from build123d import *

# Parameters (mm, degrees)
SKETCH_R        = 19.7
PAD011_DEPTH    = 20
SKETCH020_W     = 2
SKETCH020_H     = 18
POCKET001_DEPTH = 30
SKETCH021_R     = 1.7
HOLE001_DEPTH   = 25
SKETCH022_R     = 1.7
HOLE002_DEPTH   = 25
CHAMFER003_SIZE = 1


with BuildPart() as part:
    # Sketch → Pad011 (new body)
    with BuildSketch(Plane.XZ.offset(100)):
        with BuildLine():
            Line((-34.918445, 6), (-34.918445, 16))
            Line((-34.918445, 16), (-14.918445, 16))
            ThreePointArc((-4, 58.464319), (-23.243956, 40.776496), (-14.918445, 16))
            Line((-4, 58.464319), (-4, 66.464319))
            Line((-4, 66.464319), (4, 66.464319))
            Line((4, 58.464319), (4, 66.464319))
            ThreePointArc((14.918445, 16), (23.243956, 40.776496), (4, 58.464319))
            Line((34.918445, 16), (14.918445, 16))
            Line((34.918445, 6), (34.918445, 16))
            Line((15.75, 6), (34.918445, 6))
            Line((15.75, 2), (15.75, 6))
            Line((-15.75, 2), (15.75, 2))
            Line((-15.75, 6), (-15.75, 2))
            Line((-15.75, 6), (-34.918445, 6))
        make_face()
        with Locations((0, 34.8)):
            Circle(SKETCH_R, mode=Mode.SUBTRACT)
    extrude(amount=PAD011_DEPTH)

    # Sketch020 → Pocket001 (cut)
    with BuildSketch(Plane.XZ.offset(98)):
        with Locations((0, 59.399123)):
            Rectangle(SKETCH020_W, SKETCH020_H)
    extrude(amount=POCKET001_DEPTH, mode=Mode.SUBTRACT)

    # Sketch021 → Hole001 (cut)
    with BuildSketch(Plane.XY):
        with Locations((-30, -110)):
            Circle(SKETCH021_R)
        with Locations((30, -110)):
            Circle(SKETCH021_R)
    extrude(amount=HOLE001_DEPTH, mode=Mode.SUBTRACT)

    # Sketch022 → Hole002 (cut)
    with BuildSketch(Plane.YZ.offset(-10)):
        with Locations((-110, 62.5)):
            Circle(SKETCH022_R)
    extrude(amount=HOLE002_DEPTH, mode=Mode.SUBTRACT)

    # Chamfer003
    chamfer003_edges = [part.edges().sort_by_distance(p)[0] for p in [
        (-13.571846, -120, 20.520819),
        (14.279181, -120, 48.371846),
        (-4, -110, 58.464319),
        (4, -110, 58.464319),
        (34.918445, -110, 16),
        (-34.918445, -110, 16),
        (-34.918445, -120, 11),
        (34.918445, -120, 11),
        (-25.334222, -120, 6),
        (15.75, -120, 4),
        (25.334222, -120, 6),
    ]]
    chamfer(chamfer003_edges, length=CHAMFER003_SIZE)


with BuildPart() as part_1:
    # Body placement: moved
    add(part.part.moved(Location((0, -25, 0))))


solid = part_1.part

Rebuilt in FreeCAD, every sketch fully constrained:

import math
import FreeCAD as App
import Part
import Sketcher

V = App.Vector


def edges_at(feature, points):
    """Names of the edges that pass closest to the given points."""
    edges = feature.Shape.Edges
    near = lambda p: min(range(len(edges)), key=lambda i: edges[i].distToShape(Part.Vertex(*p))[0])
    return sorted({f"Edge{near(p) + 1}" for p in points})

doc = App.newDocument("Part")
body = doc.addObject("PartDesign::Body", "Body")

sketch1 = body.newObject("Sketcher::SketchObject", "Sketch")
sketch1.AttachmentSupport = (doc.getObject("XZ_Plane"), [""])
sketch1.MapMode = "FlatFace"
sketch1.AttachmentOffset = App.Placement(V(0, 0, 100), App.Rotation())
sketch1.addGeometry(Part.LineSegment(V(-34.9, 16, 0), V(-34.9, 6, 0)), False)
sketch1.addGeometry(Part.LineSegment(V(-34.9, 6, 0), V(-15.8, 6, 0)), False)
sketch1.addGeometry(Part.LineSegment(V(-15.8, 6, 0), V(-15.8, 2, 0)), False)
sketch1.addGeometry(Part.LineSegment(V(-15.8, 2, 0), V(15.8, 2, 0)), False)
sketch1.addGeometry(Part.LineSegment(V(15.8, 2, 0), V(15.8, 6, 0)), False)
sketch1.addGeometry(Part.LineSegment(V(15.8, 6, 0), V(34.9, 6, 0)), False)
sketch1.addGeometry(Part.LineSegment(V(34.9, 6, 0), V(34.9, 16, 0)), False)
sketch1.addGeometry(Part.LineSegment(V(34.9, 16, 0), V(14.9, 16, 0)), False)
sketch1.addGeometry(Part.ArcOfCircle(Part.Circle(V(0, 34.8, 0), V(0, 0, 1), 24), math.radians(-52), math.radians(80)), False)
sketch1.addGeometry(Part.LineSegment(V(4, 58.5, 0), V(4, 66.5, 0)), False)
sketch1.addGeometry(Part.LineSegment(V(4, 66.5, 0), V(-4, 66.5, 0)), False)
sketch1.addGeometry(Part.LineSegment(V(-4, 66.5, 0), V(-4, 58.5, 0)), False)
sketch1.addGeometry(Part.ArcOfCircle(Part.Circle(V(0, 34.8, 0), V(0, 0, 1), 24), math.radians(100), math.radians(232)), False)
sketch1.addGeometry(Part.LineSegment(V(-14.9, 16, 0), V(-34.9, 16, 0)), False)
sketch1.addGeometry(Part.Circle(V(0, 34.8, 0), V(0, 0, 1), 19.7), False)
sketch1.addConstraint(Sketcher.Constraint("Coincident", 0, 2, 1, 1))
sketch1.addConstraint(Sketcher.Constraint("Coincident", 1, 2, 2, 1))
sketch1.addConstraint(Sketcher.Constraint("Coincident", 2, 2, 3, 1))
sketch1.addConstraint(Sketcher.Constraint("Coincident", 3, 2, 4, 1))
sketch1.addConstraint(Sketcher.Constraint("Coincident", 4, 2, 5, 1))
sketch1.addConstraint(Sketcher.Constraint("Coincident", 5, 2, 6, 1))
sketch1.addConstraint(Sketcher.Constraint("Coincident", 6, 2, 7, 1))
sketch1.addConstraint(Sketcher.Constraint("Coincident", 7, 2, 8, 1))
sketch1.addConstraint(Sketcher.Constraint("Coincident", 8, 2, 9, 1))
sketch1.addConstraint(Sketcher.Constraint("Coincident", 9, 2, 10, 1))
sketch1.addConstraint(Sketcher.Constraint("Coincident", 10, 2, 11, 1))
sketch1.addConstraint(Sketcher.Constraint("Coincident", 11, 2, 12, 1))
sketch1.addConstraint(Sketcher.Constraint("Coincident", 12, 2, 13, 1))
sketch1.addConstraint(Sketcher.Constraint("Coincident", 13, 2, 0, 1))
sketch1.addConstraint(Sketcher.Constraint("Vertical", 0))
sketch1.addConstraint(Sketcher.Constraint("Horizontal", 1))
sketch1.addConstraint(Sketcher.Constraint("Vertical", 2))
sketch1.addConstraint(Sketcher.Constraint("Horizontal", 3))
sketch1.addConstraint(Sketcher.Constraint("Vertical", 4))
sketch1.addConstraint(Sketcher.Constraint("Horizontal", 5))
sketch1.addConstraint(Sketcher.Constraint("Vertical", 6))
sketch1.addConstraint(Sketcher.Constraint("Horizontal", 7))
sketch1.addConstraint(Sketcher.Constraint("Vertical", 9))
sketch1.addConstraint(Sketcher.Constraint("Horizontal", 10))
sketch1.addConstraint(Sketcher.Constraint("Vertical", 11))
sketch1.addConstraint(Sketcher.Constraint("Horizontal", 13))
sketch1.addConstraint(Sketcher.Constraint("Coincident", 12, 3, 8, 3))
sketch1.addConstraint(Sketcher.Constraint("Coincident", 14, 3, 8, 3))
sketch1.addConstraint(Sketcher.Constraint("Equal", 8, 12))
sketch1.addConstraint(Sketcher.Constraint("Symmetric", 1, 2, 4, 2, -2))
sketch1.addConstraint(Sketcher.Constraint("Symmetric", 8, 2, 11, 2, -2))
sketch1.addConstraint(Sketcher.Constraint("Symmetric", 6, 2, 13, 2, -2))
sketch1.addConstraint(Sketcher.Constraint("Equal", 10, 9))
sketch1.addConstraint(Sketcher.Constraint("Radius", 8, 24.0))
sketch1.addConstraint(Sketcher.Constraint("Diameter", 14, 39.4))
sketch1.addConstraint(Sketcher.Constraint("DistanceX", 7, 2, 7, 1, 20.0))
sketch1.addConstraint(Sketcher.Constraint("DistanceX", 10, 2, 10, 1, 8.0))
sketch1.addConstraint(Sketcher.Constraint("DistanceY", 0, 2, 0, 1, 10.0))
sketch1.addConstraint(Sketcher.Constraint("DistanceY", 2, 2, 2, 1, 4.0))
sketch1.addConstraint(Sketcher.Constraint("DistanceX", 3, 1, 3, 2, 31.5))
sketch1.addConstraint(Sketcher.Constraint("DistanceY", -1, 1, 0, 2, 6.0))
sketch1.addConstraint(Sketcher.Constraint("DistanceY", -1, 1, 8, 3, 34.8))
pad1 = body.newObject("PartDesign::Pad", "Pad")
pad1.Profile = sketch1
pad1.Length = 20

sketch2 = body.newObject("Sketcher::SketchObject", "Sketch001")
sketch2.AttachmentSupport = (doc.getObject("XZ_Plane"), [""])
sketch2.MapMode = "FlatFace"
sketch2.AttachmentOffset = App.Placement(V(0, 0, 98), App.Rotation())
sketch2.addGeometry(Part.LineSegment(V(-1, 68.4, 0), V(-1, 50.4, 0)), False)
sketch2.addGeometry(Part.LineSegment(V(-1, 50.4, 0), V(1, 50.4, 0)), False)
sketch2.addGeometry(Part.LineSegment(V(1, 50.4, 0), V(1, 68.4, 0)), False)
sketch2.addGeometry(Part.LineSegment(V(1, 68.4, 0), V(-1, 68.4, 0)), False)
sketch2.addConstraint(Sketcher.Constraint("Coincident", 0, 2, 1, 1))
sketch2.addConstraint(Sketcher.Constraint("Coincident", 1, 2, 2, 1))
sketch2.addConstraint(Sketcher.Constraint("Coincident", 2, 2, 3, 1))
sketch2.addConstraint(Sketcher.Constraint("Coincident", 3, 2, 0, 1))
sketch2.addConstraint(Sketcher.Constraint("Vertical", 0))
sketch2.addConstraint(Sketcher.Constraint("Horizontal", 1))
sketch2.addConstraint(Sketcher.Constraint("Vertical", 2))
sketch2.addConstraint(Sketcher.Constraint("Horizontal", 3))
sketch2.addConstraint(Sketcher.Constraint("DistanceX", 1, 1, 1, 2, 2.0))
sketch2.addConstraint(Sketcher.Constraint("DistanceY", 0, 2, 0, 1, 18.0))
sketch2.addConstraint(Sketcher.Constraint("DistanceX", 0, 2, -1, 1, 1.0))
sketch2.addConstraint(Sketcher.Constraint("DistanceY", -1, 1, 0, 2, 50.399123))
pocket1 = body.newObject("PartDesign::Pocket", "Pocket")
pocket1.Profile = sketch2
pocket1.Length = 30
pocket1.Reversed = True

sketch3 = body.newObject("Sketcher::SketchObject", "Sketch002")
sketch3.AttachmentSupport = (doc.getObject("XY_Plane"), [""])
sketch3.MapMode = "FlatFace"
sketch3.addGeometry(Part.Circle(V(-30, -110, 0), V(0, 0, 1), 1.7), False)
sketch3.addGeometry(Part.Circle(V(30, -110, 0), V(0, 0, 1), 1.7), False)
sketch3.addConstraint(Sketcher.Constraint("Equal", 0, 1))
sketch3.addConstraint(Sketcher.Constraint("Symmetric", 0, 3, 1, 3, -2))
sketch3.addConstraint(Sketcher.Constraint("Diameter", 0, 3.4))
sketch3.addConstraint(Sketcher.Constraint("DistanceX", 0, 3, -1, 1, 30.0))
sketch3.addConstraint(Sketcher.Constraint("DistanceY", 0, 3, -1, 1, 110.0))
pocket2 = body.newObject("PartDesign::Pocket", "Pocket001")
pocket2.Profile = sketch3
pocket2.Length = 25
pocket2.Reversed = True

sketch4 = body.newObject("Sketcher::SketchObject", "Sketch003")
sketch4.AttachmentSupport = (doc.getObject("YZ_Plane"), [""])
sketch4.MapMode = "FlatFace"
sketch4.AttachmentOffset = App.Placement(V(0, 0, -10), App.Rotation())
sketch4.addGeometry(Part.Circle(V(-110, 62.5, 0), V(0, 0, 1), 1.7), False)
sketch4.addConstraint(Sketcher.Constraint("Diameter", 0, 3.4))
sketch4.addConstraint(Sketcher.Constraint("DistanceX", 0, 3, -1, 1, 110.0))
sketch4.addConstraint(Sketcher.Constraint("DistanceY", -1, 1, 0, 3, 62.5))
pocket3 = body.newObject("PartDesign::Pocket", "Pocket002")
pocket3.Profile = sketch4
pocket3.Length = 25
pocket3.Reversed = True
doc.recompute()

chamfer = body.newObject("PartDesign::Chamfer", "Chamfer")
chamfer.Base = (pocket3, edges_at(pocket3, [
    (-13.572, -120, 20.521),
    (14.279, -120, 48.372),
    (-4, -110, 58.464),
    (4, -110, 58.464),
    (34.918, -110, 16),
    (-34.918, -110, 16),
    (-34.918, -120, 11),
    (34.918, -120, 11),
    (-25.334, -120, 6),
    (15.75, -120, 4),
    (25.334, -120, 6),
]))
chamfer.Size = 1
body2 = doc.addObject("PartDesign::Body", "Body001")
doc.recompute()

body.Placement = App.Placement(V(0, -25, 0), App.Rotation(V(0, 0, 1), 0))
boolean = body2.newObject("PartDesign::Boolean", "Boolean")
boolean.Type = "Fuse"
boolean.addObjects([body])

doc.recompute()
